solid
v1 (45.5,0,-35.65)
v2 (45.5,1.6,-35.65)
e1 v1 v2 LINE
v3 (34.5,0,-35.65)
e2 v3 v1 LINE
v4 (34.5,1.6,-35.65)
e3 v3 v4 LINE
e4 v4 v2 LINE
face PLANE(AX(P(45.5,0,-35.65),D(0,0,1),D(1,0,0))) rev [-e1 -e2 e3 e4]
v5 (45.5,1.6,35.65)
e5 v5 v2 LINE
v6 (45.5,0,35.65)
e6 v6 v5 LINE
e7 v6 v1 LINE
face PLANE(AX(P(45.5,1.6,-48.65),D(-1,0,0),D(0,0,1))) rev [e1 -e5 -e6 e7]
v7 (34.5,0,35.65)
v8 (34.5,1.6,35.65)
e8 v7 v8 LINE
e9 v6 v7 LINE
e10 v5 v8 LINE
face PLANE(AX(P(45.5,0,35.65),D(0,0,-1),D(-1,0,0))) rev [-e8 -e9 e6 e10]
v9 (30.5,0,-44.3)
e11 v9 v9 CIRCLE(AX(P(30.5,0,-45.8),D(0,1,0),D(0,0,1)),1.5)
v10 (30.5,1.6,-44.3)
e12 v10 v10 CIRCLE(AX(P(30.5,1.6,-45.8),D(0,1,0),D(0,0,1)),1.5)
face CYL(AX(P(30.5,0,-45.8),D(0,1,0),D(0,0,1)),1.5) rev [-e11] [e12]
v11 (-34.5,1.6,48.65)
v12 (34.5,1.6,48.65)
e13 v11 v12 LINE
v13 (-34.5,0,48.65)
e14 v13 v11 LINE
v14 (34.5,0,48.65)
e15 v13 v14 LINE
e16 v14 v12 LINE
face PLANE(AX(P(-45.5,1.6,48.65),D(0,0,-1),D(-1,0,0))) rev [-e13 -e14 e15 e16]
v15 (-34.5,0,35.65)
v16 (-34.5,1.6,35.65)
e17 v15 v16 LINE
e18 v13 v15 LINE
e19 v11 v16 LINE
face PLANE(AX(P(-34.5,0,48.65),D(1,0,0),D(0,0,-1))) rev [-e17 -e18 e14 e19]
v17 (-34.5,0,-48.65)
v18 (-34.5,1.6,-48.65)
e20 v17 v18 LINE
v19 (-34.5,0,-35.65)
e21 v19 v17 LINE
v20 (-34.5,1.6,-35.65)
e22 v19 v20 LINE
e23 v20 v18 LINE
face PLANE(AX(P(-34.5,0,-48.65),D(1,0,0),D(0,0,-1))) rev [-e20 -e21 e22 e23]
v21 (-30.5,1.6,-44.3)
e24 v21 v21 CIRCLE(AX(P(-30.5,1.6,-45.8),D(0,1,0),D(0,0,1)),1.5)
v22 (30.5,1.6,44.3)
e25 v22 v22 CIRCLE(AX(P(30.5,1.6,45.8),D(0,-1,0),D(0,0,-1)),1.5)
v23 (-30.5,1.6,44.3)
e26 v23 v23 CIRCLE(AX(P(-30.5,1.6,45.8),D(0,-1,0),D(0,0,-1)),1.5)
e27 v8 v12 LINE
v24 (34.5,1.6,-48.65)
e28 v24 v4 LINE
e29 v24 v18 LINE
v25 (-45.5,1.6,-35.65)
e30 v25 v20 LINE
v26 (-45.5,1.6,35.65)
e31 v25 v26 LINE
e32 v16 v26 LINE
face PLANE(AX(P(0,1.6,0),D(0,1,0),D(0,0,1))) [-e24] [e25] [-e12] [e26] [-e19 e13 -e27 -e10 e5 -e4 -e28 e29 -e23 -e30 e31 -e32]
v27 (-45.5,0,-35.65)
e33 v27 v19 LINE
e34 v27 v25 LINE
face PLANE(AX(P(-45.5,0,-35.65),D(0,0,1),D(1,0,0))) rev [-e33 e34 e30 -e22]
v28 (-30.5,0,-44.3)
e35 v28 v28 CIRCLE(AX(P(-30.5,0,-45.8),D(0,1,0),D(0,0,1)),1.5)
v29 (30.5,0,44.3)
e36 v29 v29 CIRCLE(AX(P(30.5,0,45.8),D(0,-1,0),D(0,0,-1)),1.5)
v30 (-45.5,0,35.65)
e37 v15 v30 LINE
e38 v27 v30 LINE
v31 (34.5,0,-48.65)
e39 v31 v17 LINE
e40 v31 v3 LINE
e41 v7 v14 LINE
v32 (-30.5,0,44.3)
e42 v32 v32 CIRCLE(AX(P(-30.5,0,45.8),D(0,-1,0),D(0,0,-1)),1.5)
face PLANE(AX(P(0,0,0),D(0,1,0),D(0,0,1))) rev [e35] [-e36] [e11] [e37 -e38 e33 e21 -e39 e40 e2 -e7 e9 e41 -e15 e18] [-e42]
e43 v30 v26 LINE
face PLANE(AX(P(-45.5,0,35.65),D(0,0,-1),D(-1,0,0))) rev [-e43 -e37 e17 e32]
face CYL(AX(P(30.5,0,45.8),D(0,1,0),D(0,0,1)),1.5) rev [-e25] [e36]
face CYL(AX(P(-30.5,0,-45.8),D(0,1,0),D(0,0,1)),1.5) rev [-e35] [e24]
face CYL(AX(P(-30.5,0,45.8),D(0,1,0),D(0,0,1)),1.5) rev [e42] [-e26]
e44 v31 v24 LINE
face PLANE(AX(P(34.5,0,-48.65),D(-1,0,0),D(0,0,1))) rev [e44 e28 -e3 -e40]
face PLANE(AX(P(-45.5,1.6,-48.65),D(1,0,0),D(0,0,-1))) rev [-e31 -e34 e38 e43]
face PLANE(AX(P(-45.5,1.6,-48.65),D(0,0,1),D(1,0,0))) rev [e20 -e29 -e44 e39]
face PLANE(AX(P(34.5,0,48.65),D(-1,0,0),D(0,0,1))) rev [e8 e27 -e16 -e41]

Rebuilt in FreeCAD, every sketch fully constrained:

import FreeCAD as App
import Part
import Sketcher
Q = App.Units.Quantity


def add_polygon(sketch, points):
    """Adds a closed chain of lines whose ends are joined by coincident constraints."""
    first, n = sketch.GeometryCount, len(points)
    for a, b in zip(points, points[1:] + points[:1]):
        sketch.addGeometry(Part.LineSegment(App.Vector(*a, 0), App.Vector(*b, 0)), False)
    for i in range(n):
        sketch.addConstraint(Sketcher.Constraint("Coincident", first + i, 2, first + (i + 1) % n, 1))

doc = App.newDocument("Part")
params = doc.addObject("Spreadsheet::Sheet", "Params")
for row, (alias, value) in enumerate([
    ("sketch1_width", "91 mm"),
    ("sketch1_height", "97.3 mm"),
    ("pad1_length", "1.6 mm"),
    ("sketch2_width", "11 mm"),
    ("sketch2_height", "13 mm"),
    ("pocket1_length", "1.6 mm"),
    ("sketch3_diameter", "3 mm"),
    ("pocket2_length", "1.6 mm"),
], start=1):
    params.set(f"A{row}", alias)
    params.set(f"B{row}", "=" + value)
    params.setAlias(f"B{row}", alias)

body = doc.addObject("PartDesign::Body", "Body")

# Sketch on XZ plane
sketch1 = doc.addObject("Sketcher::SketchObject", "Sketch")
body.addObject(sketch1)
sketch1.AttachmentSupport = (doc.XZ_Plane, [""])
sketch1.MapMode = "FlatFace"
add_polygon(sketch1, [(-46, -49), (-46, 49), (46, 49), (46, -49)])  # lines 0-3
sketch1.addConstraint([
    Sketcher.Constraint("Vertical", 0),
    Sketcher.Constraint("Horizontal", 1),
    Sketcher.Constraint("Vertical", 2),
    Sketcher.Constraint("Horizontal", 3),
    Sketcher.Constraint("Symmetric", 0, 2, 2, 2, -1, 1),
    Sketcher.Constraint("DistanceX", 1, 1, 1, 2, Q("91 mm")),
    Sketcher.Constraint("DistanceY", 0, 1, 0, 2, Q("97.3 mm")),
])
sketch1.setExpression("Constraints[9]", "Params.sketch1_width")
sketch1.setExpression("Constraints[10]", "Params.sketch1_height")
pad1 = doc.addObject("PartDesign::Pad", "Pad")
body.addObject(pad1)
pad1.Profile = sketch1
pad1.setExpression("Length", "Params.pad1_length")
pad1.Reversed = True

# Sketch on XZ plane
sketch2 = doc.addObject("Sketcher::SketchObject", "Sketch001")
body.addObject(sketch2)
sketch2.AttachmentSupport = (doc.XZ_Plane, [""])
sketch2.MapMode = "FlatFace"
sketch2.AttachmentOffset = App.Placement(App.Vector(0, 0, -1.6), App.Rotation())
add_polygon(sketch2, [(-46, -49), (-46, -36), (-34, -36), (-34, -49)])  # lines 0-3
add_polygon(sketch2, [(34, -49), (34, -36), (46, -36), (46, -49)])  # lines 4-7
add_polygon(sketch2, [(-46, 36), (-46, 49), (-34, 49), (-34, 36)])  # lines 8-11
add_polygon(sketch2, [(34, 36), (34, 49), (46, 49), (46, 36)])  # lines 12-15
sketch2.addConstraint([
    Sketcher.Constraint("Vertical", 0),
    Sketcher.Constraint("Horizontal", 1),
    Sketcher.Constraint("Vertical", 2),
    Sketcher.Constraint("Horizontal", 3),
    Sketcher.Constraint("Vertical", 4),
    Sketcher.Constraint("Horizontal", 5),
    Sketcher.Constraint("Vertical", 6),
    Sketcher.Constraint("Horizontal", 7),
    Sketcher.Constraint("Vertical", 8),
    Sketcher.Constraint("Horizontal", 9),
    Sketcher.Constraint("Vertical", 10),
    Sketcher.Constraint("Horizontal", 11),
    Sketcher.Constraint("Vertical", 12),
    Sketcher.Constraint("Horizontal", 13),
    Sketcher.Constraint("Vertical", 14),
    Sketcher.Constraint("Horizontal", 15),
    Sketcher.Constraint("Symmetric", 6, 2, 8, 2, -1, 1),
    Sketcher.Constraint("Symmetric", 4, 2, 10, 2, -1, 1),
    Sketcher.Constraint("Symmetric", 2, 2, 12, 2, -1, 1),
    Sketcher.Constraint("Symmetric", 0, 2, 14, 2, -1, 1),
    Sketcher.Constraint("Symmetric", 1, 2, 4, 2, -2),
    Sketcher.Constraint("Symmetric", 3, 2, 6, 2, -2),
    Sketcher.Constraint("DistanceX", 1, 1, 1, 2, Q("11 mm")),
    Sketcher.Constraint("DistanceY", 0, 1, 0, 2, Q("13 mm")),
    Sketcher.Constraint("DistanceX", 1, 2, 4, 2, Q("69 mm")),
    Sketcher.Constraint("DistanceY", 0, 2, 8, 2, Q("84.3 mm")),
])
sketch2.setExpression("Constraints[38]", "Params.sketch2_width")
sketch2.setExpression("Constraints[39]", "Params.sketch2_height")
pocket1 = doc.addObject("PartDesign::Pocket", "Pocket")
body.addObject(pocket1)
pocket1.Profile = sketch2
pocket1.setExpression("Length", "Params.pocket1_length")
pocket1.Reversed = True

# Sketch on XZ plane
sketch3 = doc.addObject("Sketcher::SketchObject", "Sketch002")
body.addObject(sketch3)
sketch3.AttachmentSupport = (doc.XZ_Plane, [""])
sketch3.MapMode = "FlatFace"
sketch3.AttachmentOffset = App.Placement(App.Vector(0, 0, -1.6), App.Rotation())
sketch3.addGeometry([
    Part.Circle(App.Vector(-30.5, -45.8, 0), App.Vector(0, 0, 1), 1.5),
    Part.Circle(App.Vector(30.5, -45.8, 0), App.Vector(0, 0, 1), 1.5),
], False)
sketch3.addConstraint([
    Sketcher.Constraint("Equal", 0, 1),
    Sketcher.Constraint("Symmetric", 0, 3, 1, 3, -2),
    Sketcher.Constraint("Diameter", 0, Q("3 mm")),
    Sketcher.Constraint("DistanceX", 0, 3, 1, 3, Q("61 mm")),
    Sketcher.Constraint("DistanceY", 0, 3, -1, 1, Q("45.8 mm")),
])
sketch3.setExpression("Constraints[2]", "Params.sketch3_diameter")
pocket2 = doc.addObject("PartDesign::Pocket", "Pocket001")
body.addObject(pocket2)
pocket2.Profile = sketch3
pocket2.setExpression("Length", "Params.pocket2_length")
pocket2.Reversed = True
doc.recompute()

mirrored = doc.addObject("PartDesign::Mirrored", "Mirrored")
body.addObject(mirrored)
mirrored.Originals = [pocket2]
mirrored.MirrorPlane = (doc.XY_Plane, [""])
body.Tip = mirrored

doc.recompute()
